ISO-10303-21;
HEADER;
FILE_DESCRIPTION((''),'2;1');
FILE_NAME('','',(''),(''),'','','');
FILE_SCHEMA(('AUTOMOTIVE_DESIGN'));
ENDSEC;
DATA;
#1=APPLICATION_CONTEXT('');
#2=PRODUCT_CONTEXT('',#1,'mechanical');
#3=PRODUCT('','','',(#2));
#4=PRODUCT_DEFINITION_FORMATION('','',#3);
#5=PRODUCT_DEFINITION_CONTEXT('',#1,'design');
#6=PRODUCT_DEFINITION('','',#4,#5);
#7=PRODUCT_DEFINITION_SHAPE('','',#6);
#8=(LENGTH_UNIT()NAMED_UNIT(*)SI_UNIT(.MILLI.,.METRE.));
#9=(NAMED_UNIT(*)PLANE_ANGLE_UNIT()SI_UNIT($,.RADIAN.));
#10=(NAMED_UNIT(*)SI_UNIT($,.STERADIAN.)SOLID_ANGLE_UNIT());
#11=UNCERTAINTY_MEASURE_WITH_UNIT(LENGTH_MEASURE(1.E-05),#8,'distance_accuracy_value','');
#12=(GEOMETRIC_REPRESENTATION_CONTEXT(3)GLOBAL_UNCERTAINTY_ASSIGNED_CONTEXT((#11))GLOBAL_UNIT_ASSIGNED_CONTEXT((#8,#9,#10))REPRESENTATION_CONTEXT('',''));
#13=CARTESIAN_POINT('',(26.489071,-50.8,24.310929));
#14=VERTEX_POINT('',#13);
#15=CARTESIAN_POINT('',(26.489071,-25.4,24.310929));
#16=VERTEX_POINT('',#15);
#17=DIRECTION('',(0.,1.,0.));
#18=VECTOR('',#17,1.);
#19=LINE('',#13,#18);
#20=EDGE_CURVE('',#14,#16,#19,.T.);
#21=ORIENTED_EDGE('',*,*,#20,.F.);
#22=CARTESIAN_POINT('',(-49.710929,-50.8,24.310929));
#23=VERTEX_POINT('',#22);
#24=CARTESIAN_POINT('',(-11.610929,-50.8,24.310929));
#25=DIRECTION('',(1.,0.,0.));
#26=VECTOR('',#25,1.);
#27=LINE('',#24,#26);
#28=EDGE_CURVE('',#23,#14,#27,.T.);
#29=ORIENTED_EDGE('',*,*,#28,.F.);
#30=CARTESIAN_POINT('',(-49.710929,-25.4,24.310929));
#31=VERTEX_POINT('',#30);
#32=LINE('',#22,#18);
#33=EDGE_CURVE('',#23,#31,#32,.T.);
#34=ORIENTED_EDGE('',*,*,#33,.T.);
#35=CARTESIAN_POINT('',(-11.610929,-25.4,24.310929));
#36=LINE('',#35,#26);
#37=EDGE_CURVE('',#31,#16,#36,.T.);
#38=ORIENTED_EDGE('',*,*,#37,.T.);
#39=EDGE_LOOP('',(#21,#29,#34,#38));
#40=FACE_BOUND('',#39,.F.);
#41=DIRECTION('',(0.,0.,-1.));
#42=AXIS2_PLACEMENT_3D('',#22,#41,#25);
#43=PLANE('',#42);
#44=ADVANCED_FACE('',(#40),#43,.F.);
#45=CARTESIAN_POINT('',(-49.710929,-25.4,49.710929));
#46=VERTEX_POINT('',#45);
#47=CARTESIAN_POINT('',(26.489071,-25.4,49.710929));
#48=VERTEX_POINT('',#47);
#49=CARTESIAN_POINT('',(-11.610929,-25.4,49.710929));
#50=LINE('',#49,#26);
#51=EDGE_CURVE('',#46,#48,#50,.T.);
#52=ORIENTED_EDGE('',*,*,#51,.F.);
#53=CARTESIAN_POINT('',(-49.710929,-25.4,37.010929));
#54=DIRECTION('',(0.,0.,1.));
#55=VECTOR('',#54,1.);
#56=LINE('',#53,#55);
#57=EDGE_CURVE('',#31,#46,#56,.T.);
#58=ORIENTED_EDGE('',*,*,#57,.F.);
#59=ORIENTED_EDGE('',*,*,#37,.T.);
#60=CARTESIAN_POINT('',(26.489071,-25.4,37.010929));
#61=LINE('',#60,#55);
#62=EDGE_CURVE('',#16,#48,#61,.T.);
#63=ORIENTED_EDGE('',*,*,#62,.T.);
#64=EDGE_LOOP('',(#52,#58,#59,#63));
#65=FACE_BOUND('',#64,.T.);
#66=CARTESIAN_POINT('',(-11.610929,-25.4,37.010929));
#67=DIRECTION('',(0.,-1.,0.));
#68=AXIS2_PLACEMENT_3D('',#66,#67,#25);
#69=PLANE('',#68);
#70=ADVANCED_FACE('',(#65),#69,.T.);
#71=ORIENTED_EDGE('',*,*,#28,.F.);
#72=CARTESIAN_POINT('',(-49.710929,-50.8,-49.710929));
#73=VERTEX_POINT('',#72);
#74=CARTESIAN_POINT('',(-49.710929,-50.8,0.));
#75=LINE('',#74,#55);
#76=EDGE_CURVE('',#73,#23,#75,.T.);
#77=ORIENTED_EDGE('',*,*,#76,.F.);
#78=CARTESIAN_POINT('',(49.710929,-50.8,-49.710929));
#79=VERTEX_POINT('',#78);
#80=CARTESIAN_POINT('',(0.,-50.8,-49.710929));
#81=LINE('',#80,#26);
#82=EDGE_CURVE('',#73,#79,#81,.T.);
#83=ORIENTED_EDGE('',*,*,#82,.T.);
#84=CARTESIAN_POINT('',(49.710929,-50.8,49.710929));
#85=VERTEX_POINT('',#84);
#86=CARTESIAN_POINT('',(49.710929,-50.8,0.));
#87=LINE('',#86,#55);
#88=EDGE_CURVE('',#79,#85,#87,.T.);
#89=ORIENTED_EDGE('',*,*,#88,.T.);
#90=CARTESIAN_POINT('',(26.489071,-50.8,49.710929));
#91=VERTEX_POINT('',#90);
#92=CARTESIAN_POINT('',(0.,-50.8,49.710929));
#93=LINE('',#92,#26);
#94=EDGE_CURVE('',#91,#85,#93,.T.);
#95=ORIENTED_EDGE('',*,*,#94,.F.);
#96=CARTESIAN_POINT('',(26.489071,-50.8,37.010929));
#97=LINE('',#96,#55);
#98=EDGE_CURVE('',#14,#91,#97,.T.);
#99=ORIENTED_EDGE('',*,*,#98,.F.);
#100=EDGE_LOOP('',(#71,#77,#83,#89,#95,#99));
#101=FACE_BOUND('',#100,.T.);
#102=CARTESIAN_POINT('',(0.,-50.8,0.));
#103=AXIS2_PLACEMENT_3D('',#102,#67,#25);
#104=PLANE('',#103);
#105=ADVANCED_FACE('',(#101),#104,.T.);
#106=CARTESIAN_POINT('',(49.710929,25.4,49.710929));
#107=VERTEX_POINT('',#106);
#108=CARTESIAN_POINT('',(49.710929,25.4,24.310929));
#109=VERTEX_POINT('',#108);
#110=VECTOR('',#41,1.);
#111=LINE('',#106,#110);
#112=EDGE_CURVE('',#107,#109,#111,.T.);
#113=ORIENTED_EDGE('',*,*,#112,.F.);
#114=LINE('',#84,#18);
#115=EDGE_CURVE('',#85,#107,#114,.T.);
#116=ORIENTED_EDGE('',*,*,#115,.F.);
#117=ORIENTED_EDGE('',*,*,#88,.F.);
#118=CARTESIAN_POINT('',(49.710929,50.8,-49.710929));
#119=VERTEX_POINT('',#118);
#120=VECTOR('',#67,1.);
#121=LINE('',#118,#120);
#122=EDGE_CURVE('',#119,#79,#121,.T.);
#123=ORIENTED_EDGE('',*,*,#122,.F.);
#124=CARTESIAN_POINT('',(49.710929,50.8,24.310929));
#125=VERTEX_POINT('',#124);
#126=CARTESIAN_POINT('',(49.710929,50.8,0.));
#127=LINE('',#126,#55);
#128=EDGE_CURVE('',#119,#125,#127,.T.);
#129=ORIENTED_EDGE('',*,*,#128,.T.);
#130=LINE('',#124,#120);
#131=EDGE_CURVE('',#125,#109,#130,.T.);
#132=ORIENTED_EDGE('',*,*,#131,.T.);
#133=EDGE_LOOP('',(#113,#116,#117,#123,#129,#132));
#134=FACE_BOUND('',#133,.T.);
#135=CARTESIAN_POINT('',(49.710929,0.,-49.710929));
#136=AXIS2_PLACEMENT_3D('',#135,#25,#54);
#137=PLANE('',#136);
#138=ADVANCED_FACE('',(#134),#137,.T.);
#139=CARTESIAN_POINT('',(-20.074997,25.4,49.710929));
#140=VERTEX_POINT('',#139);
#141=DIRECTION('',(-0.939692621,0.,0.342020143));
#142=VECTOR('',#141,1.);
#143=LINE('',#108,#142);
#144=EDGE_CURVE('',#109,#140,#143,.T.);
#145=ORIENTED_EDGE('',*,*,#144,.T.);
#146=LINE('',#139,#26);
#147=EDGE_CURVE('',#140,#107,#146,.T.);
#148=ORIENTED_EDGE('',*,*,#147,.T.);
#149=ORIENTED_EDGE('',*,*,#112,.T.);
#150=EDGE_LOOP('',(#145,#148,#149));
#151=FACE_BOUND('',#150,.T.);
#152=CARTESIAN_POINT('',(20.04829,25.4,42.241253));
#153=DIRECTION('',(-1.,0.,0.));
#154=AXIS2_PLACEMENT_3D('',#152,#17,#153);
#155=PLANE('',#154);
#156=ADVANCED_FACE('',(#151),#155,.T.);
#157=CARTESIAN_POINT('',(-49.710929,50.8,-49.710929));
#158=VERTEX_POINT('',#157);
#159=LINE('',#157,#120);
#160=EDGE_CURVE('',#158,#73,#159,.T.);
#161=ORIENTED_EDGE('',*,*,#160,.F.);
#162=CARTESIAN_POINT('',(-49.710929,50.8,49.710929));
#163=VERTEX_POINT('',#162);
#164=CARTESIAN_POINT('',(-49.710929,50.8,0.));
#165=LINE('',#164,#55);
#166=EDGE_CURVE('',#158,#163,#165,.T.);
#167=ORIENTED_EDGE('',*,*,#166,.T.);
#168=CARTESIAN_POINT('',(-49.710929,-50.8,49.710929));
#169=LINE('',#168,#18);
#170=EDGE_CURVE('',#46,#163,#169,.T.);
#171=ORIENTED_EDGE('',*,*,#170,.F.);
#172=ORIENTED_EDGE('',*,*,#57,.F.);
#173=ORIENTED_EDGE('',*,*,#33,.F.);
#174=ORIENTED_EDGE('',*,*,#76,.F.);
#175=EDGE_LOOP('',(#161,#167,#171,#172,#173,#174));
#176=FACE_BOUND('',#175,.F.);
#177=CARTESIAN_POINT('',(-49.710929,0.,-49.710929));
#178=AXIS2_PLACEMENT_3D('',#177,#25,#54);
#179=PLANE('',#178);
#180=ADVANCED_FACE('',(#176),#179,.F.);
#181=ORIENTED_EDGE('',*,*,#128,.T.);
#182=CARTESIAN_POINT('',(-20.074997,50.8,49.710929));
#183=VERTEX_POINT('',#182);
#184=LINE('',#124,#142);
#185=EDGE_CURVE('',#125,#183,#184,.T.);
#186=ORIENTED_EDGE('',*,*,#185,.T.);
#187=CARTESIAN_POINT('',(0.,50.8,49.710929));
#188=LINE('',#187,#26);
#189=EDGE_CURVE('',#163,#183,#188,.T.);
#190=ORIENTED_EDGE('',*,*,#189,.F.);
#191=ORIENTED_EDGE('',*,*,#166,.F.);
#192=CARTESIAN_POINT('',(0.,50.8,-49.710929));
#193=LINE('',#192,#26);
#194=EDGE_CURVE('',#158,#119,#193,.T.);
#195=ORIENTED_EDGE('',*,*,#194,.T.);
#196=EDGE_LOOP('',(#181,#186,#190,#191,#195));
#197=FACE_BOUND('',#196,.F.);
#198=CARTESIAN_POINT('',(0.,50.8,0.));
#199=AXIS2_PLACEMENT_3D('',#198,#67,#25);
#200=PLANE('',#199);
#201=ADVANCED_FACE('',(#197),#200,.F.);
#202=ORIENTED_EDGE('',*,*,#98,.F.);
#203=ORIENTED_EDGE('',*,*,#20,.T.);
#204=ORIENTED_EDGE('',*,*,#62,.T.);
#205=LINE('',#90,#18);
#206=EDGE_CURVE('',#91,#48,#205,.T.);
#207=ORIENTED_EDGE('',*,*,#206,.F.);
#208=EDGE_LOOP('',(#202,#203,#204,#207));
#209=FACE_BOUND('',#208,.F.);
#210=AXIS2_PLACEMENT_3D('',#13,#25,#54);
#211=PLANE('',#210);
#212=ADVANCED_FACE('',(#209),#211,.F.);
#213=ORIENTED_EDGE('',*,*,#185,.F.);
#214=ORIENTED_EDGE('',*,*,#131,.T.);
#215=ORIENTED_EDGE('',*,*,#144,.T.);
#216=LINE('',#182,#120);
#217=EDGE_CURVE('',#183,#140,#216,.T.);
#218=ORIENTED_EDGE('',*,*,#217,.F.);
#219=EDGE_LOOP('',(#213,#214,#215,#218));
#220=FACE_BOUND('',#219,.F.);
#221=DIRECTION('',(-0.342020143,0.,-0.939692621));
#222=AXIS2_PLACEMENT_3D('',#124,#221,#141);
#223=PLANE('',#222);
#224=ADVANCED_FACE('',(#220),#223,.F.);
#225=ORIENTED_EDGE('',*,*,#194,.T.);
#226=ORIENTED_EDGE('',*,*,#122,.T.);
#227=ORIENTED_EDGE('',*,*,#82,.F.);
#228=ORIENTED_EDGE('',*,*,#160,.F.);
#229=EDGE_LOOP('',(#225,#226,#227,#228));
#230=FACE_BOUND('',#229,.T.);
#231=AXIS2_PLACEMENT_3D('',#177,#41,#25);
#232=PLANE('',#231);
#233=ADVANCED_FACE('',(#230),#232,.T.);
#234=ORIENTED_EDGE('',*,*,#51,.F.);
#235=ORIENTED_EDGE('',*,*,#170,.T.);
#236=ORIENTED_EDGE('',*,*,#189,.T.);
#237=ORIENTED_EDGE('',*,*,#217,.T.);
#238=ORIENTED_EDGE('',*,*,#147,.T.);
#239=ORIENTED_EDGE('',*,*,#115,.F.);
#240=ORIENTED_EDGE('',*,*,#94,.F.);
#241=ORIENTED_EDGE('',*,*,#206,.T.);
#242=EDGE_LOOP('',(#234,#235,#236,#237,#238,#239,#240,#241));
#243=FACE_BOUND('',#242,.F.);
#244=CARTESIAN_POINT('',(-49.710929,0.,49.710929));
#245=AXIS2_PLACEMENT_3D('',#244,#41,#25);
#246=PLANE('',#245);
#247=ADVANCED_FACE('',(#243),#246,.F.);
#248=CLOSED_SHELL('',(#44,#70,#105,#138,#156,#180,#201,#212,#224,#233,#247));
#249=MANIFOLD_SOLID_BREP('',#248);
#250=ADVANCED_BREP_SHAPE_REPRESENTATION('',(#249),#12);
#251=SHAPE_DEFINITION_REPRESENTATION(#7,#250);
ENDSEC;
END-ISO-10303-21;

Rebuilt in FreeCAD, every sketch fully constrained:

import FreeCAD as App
import Part
import Sketcher
from FreeCAD import Vector
Q = App.Units.Quantity


def add_polygon(sketch, points):
    """Adds a closed chain of lines whose ends are joined by coincident constraints."""
    first, n = sketch.GeometryCount, len(points)
    for a, b in zip(points, points[1:] + points[:1]):
        sketch.addGeometry(Part.LineSegment(App.Vector(*a, 0), App.Vector(*b, 0)), False)
    for i in range(n):
        sketch.addConstraint(Sketcher.Constraint("Coincident", first + i, 2, first + (i + 1) % n, 1))

doc = App.newDocument("Part")
params = doc.addObject("Spreadsheet::Sheet", "Params")
for row, (alias, value) in enumerate([
    ("pad1_length", "4 in"),
    ("sketch2_width", "3 in"),
    ("sketch2_height", "1 in"),
    ("pocket1_length", "1 in"),
    ("sketch3_height", "1 in"),
    ("pocket2_length", "1 in"),
], start=1):
    params.set(f"A{row}", alias)
    params.set(f"B{row}", "=" + value)
    params.setAlias(f"B{row}", alias)

body = doc.addObject("PartDesign::Body", "Body")

# Sketch on XZ plane
sketch1 = doc.addObject("Sketcher::SketchObject", "Sketch")
body.addObject(sketch1)
sketch1.AttachmentSupport = (doc.XZ_Plane, [""])
sketch1.MapMode = "FlatFace"
add_polygon(sketch1, [(-49.710929, 49.710929), (-49.710929, -49.710929), (49.710929, -49.710929), (49.710929, 49.710929)])  # lines 0-3
sketch1.addConstraint(Sketcher.Constraint("Vertical", 0))
sketch1.addConstraint(Sketcher.Constraint("Horizontal", 1))
sketch1.addConstraint(Sketcher.Constraint("Vertical", 2))
sketch1.addConstraint(Sketcher.Constraint("Horizontal", 3))
sketch1.addConstraint(Sketcher.Constraint("Symmetric", 0, 2, 2, 2, -1, 1))
sketch1.addConstraint(Sketcher.Constraint("Equal", 3, 0))
sketch1.addConstraint(Sketcher.Constraint("DistanceX", 1, 1, 1, 2, Q("99.421859 mm")))
pad1 = doc.addObject("PartDesign::Pad", "Pad")
body.addObject(pad1)
pad1.Profile = sketch1
pad1.setExpression("Length", "Params.pad1_length")
pad1.Midplane = True

# Sketch on XZ plane
sketch2 = doc.addObject("Sketcher::SketchObject", "Sketch001")
body.addObject(sketch2)
sketch2.AttachmentSupport = (doc.XZ_Plane, [""])
sketch2.MapMode = "FlatFace"
sketch2.AttachmentOffset = App.Placement(Vector(0, 0, 2 * 25.4), App.Rotation())
add_polygon(sketch2, [(-49.710929, 49.710929), (-49.710929, 24.310929), (26.489071, 24.310929), (26.489071, 49.710929)])  # lines 0-3
sketch2.addConstraint(Sketcher.Constraint("Vertical", 0))
sketch2.addConstraint(Sketcher.Constraint("Horizontal", 1))
sketch2.addConstraint(Sketcher.Constraint("Vertical", 2))
sketch2.addConstraint(Sketcher.Constraint("Horizontal", 3))
sketch2.addConstraint(Sketcher.Constraint("DistanceX", 1, 1, 1, 2, Q("3 in")))
sketch2.addConstraint(Sketcher.Constraint("DistanceY", 0, 2, 0, 1, Q("1 in")))
sketch2.addConstraint(Sketcher.Constraint("DistanceX", 0, 2, -1, 1, Q("49.710929 mm")))
sketch2.addConstraint(Sketcher.Constraint("DistanceY", -1, 1, 0, 2, Q("24.310929 mm")))
sketch2.setExpression("Constraints[8]", "Params.sketch2_width")
sketch2.setExpression("Constraints[9]", "Params.sketch2_height")
pocket1 = doc.addObject("PartDesign::Pocket", "Pocket")
body.addObject(pocket1)
pocket1.Profile = sketch2
pocket1.setExpression("Length", "Params.pocket1_length")

# Sketch on XZ plane
sketch3 = doc.addObject("Sketcher::SketchObject", "Sketch002")
body.addObject(sketch3)
sketch3.AttachmentSupport = (doc.XZ_Plane, [""])
sketch3.MapMode = "FlatFace"
sketch3.AttachmentOffset = App.Placement(Vector(0, 0, -2 * 25.4), App.Rotation())
add_polygon(sketch3, [(49.710929, 24.310929), (-20.074997, 49.710929), (49.710929, 49.710929)])  # lines 0-2
sketch3.addConstraint(Sketcher.Constraint("Horizontal", 1))
sketch3.addConstraint(Sketcher.Constraint("Vertical", 2))
sketch3.addConstraint(Sketcher.Constraint("DistanceY", 2, 2, 2, 1, Q("1 in")))
sketch3.addConstraint(Sketcher.Constraint("Angle", 0, Q("160 deg")))
sketch3.addConstraint(Sketcher.Constraint("DistanceY", -1, 1, 0, 2, Q("49.710929 mm")))
sketch3.addConstraint(Sketcher.Constraint("DistanceX", -1, 1, 1, 2, Q("49.710929 mm")))
sketch3.setExpression("Constraints[5]", "Params.sketch3_height")
pocket2 = doc.addObject("PartDesign::Pocket", "Pocket001")
body.addObject(pocket2)
pocket2.Profile = sketch3
pocket2.setExpression("Length", "Params.pocket2_length")
pocket2.Reversed = True

doc.recompute()
